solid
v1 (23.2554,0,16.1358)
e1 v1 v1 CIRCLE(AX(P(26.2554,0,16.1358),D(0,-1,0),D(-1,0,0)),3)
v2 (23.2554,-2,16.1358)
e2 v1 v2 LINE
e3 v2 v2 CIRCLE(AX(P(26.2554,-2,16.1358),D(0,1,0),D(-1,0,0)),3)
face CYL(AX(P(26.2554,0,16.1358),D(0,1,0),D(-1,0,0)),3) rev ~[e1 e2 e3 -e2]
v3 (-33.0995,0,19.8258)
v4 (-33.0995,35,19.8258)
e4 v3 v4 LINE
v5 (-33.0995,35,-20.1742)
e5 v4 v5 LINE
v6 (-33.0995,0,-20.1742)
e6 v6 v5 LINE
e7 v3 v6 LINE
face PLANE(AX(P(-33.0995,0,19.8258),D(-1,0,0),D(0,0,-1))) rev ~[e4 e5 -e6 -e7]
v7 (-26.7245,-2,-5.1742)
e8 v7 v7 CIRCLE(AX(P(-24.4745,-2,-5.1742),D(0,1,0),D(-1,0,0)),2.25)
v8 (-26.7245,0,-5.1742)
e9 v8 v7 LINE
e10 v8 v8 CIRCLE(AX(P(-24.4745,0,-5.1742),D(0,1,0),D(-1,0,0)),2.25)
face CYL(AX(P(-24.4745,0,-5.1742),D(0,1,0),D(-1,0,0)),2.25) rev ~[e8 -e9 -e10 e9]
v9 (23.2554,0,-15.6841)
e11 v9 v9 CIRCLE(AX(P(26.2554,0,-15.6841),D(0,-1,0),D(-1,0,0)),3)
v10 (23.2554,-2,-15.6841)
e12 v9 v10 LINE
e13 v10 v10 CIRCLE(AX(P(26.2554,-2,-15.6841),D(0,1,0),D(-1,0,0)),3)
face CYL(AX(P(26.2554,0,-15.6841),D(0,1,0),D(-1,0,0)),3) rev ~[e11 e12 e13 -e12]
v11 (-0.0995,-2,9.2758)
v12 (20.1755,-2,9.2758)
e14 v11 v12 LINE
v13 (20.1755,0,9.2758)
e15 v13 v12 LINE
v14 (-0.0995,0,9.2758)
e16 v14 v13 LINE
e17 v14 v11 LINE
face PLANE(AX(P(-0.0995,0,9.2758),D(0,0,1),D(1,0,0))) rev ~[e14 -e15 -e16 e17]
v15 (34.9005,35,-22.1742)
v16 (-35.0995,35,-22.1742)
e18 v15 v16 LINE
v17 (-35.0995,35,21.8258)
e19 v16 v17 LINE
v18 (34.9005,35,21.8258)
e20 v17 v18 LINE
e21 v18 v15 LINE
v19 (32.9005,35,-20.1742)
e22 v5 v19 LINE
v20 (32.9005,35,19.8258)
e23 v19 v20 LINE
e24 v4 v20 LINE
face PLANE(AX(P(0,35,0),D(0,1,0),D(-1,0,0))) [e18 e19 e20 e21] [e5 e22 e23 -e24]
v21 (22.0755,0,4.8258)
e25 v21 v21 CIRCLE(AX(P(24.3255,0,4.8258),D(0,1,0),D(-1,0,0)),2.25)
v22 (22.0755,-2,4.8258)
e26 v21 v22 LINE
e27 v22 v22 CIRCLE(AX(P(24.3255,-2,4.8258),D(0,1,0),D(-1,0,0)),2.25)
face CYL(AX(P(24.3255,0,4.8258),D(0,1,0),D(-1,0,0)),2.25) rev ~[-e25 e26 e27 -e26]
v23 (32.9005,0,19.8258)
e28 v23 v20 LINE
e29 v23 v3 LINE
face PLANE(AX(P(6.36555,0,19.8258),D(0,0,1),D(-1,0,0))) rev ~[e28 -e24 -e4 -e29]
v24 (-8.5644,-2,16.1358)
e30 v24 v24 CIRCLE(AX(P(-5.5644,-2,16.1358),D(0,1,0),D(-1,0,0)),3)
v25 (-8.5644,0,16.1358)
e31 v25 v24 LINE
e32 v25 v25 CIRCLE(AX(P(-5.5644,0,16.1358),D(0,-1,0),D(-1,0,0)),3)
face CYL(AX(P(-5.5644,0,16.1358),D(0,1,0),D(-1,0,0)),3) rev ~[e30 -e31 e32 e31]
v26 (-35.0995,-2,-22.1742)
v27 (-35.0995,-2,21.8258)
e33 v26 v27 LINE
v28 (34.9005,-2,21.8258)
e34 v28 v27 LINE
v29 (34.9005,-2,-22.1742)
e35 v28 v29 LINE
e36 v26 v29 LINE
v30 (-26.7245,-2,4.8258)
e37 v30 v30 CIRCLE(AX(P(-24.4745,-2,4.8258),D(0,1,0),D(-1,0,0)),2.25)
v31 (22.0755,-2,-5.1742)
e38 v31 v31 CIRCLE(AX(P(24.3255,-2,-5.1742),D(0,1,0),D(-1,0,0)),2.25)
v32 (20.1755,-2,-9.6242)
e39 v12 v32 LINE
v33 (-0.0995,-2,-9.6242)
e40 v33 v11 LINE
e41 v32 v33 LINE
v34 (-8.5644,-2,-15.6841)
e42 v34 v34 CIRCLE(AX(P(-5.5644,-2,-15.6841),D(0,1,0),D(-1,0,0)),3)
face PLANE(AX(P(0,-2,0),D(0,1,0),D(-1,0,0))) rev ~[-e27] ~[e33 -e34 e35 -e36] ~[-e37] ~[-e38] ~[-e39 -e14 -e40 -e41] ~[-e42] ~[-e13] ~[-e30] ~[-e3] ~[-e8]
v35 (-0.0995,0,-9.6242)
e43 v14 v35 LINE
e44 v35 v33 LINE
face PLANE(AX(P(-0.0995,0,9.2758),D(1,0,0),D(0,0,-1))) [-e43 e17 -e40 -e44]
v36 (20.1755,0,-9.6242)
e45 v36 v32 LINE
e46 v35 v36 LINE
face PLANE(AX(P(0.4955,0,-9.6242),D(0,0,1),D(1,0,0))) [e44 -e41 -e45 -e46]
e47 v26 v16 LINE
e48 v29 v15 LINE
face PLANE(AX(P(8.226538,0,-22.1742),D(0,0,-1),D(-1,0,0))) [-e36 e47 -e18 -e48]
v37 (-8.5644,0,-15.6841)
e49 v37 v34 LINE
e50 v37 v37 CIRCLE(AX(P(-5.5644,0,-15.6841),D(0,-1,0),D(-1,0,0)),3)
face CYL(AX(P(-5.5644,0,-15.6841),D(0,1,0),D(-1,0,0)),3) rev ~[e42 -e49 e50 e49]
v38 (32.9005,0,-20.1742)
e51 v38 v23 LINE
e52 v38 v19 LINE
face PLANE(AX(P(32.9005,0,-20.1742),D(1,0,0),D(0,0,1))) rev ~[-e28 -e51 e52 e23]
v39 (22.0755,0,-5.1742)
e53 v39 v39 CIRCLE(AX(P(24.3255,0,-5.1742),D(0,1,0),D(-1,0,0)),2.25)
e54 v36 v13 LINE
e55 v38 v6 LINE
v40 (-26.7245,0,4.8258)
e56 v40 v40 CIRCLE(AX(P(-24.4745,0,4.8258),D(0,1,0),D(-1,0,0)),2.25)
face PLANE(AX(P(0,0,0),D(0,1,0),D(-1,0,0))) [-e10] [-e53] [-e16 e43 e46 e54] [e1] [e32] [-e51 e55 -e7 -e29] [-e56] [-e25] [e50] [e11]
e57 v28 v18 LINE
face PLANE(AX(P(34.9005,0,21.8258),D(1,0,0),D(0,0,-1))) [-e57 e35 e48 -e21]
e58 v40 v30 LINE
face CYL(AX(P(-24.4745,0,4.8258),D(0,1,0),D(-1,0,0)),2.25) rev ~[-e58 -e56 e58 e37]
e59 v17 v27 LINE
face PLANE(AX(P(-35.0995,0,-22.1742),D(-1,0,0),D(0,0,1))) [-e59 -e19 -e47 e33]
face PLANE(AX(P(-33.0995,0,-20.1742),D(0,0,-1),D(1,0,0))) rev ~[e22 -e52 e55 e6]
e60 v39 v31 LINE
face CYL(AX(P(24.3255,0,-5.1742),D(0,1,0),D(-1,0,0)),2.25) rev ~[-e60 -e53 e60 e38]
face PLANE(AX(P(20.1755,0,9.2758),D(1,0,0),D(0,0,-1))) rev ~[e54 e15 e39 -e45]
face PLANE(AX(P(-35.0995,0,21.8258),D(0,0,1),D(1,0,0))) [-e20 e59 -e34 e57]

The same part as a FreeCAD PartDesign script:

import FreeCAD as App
import Part
import Sketcher
from FreeCAD import Vector
Q = App.Units.Quantity

doc = App.newDocument("Part")
body = doc.addObject("PartDesign::Body", "Body")

sketch1 = doc.addObject("Sketcher::SketchObject", "Sketch")
body.addObject(sketch1)
sketch1.AttachmentSupport = (doc.XZ_Plane, [""])
sketch1.MapMode = "FlatFace"
sketch1.addGeometry([
    Part.LineSegment(Vector(-35.1, 21.8, 0), Vector(34.9, 21.8, 0)),
    Part.LineSegment(Vector(34.9, 21.8, 0), Vector(34.9, -22.2, 0)),
    Part.LineSegment(Vector(34.9, -22.2, 0), Vector(-35.1, -22.2, 0)),
    Part.LineSegment(Vector(-35.1, -22.2, 0), Vector(-35.1, 21.8, 0)),
    Part.Circle(Vector(-24.5, 4.8, 0), Vector(0, 0, 1), 2.2),
    Part.Circle(Vector(-5.6, 16.1, 0), Vector(0, 0, 1), 3),
    Part.Circle(Vector(-5.6, -15.7, 0), Vector(0, 0, 1), 3),
    Part.Circle(Vector(-24.5, -5.2, 0), Vector(0, 0, 1), 2.2),
    Part.Circle(Vector(26.3, -15.7, 0), Vector(0, 0, 1), 3),
    Part.LineSegment(Vector(20.2, 9.3, 0), Vector(-0.1, 9.3, 0)),
    Part.LineSegment(Vector(-0.1, 9.3, 0), Vector(-0.1, -9.6, 0)),
    Part.LineSegment(Vector(-0.1, -9.6, 0), Vector(20.2, -9.6, 0)),
    Part.LineSegment(Vector(20.2, -9.6, 0), Vector(20.2, 9.3, 0)),
    Part.Circle(Vector(26.3, 16.1, 0), Vector(0, 0, 1), 3),
    Part.Circle(Vector(24.3, 4.8, 0), Vector(0, 0, 1), 2.2),
    Part.Circle(Vector(24.3, -5.2, 0), Vector(0, 0, 1), 2.2),
], False)
sketch1.addConstraint([
    Sketcher.Constraint("Coincident", 0, 2, 1, 1),
    Sketcher.Constraint("Coincident", 1, 2, 2, 1),
    Sketcher.Constraint("Coincident", 2, 2, 3, 1),
    Sketcher.Constraint("Coincident", 3, 2, 0, 1),
    Sketcher.Constraint("Coincident", 9, 2, 10, 1),
    Sketcher.Constraint("Coincident", 10, 2, 11, 1),
    Sketcher.Constraint("Coincident", 11, 2, 12, 1),
    Sketcher.Constraint("Coincident", 12, 2, 9, 1),
    Sketcher.Constraint("Horizontal", 0),
    Sketcher.Constraint("Vertical", 1),
    Sketcher.Constraint("Horizontal", 2),
    Sketcher.Constraint("Vertical", 3),
    Sketcher.Constraint("Horizontal", 9),
    Sketcher.Constraint("Vertical", 10),
    Sketcher.Constraint("Horizontal", 11),
    Sketcher.Constraint("Vertical", 12),
    Sketcher.Constraint("Equal", 5, 6),
    Sketcher.Constraint("Equal", 4, 7),
    Sketcher.Constraint("Equal", 6, 8),
    Sketcher.Constraint("Equal", 8, 13),
    Sketcher.Constraint("Equal", 7, 14),
    Sketcher.Constraint("Equal", 14, 15),
    Sketcher.Constraint("Horizontal", 6, 3, 8, 3),
    Sketcher.Constraint("Horizontal", 5, 3, 13, 3),
    Sketcher.Constraint("Horizontal", 4, 3, 14, 3),
    Sketcher.Constraint("Horizontal", 7, 3, 15, 3),
    Sketcher.Constraint("Vertical", 5, 3, 6, 3),
    Sketcher.Constraint("Vertical", 4, 3, 7, 3),
    Sketcher.Constraint("Vertical", 8, 3, 13, 3),
    Sketcher.Constraint("Vertical", 14, 3, 15, 3),
    Sketcher.Constraint("Diameter", 5, Q("6 mm")),
    Sketcher.Constraint("DistanceX", 0, 1, 0, 2, Q("70 mm")),
    Sketcher.Constraint("DistanceY", 1, 2, 1, 1, Q("44 mm")),
    Sketcher.Constraint("Diameter", 4, Q("4.5 mm")),
    Sketcher.Constraint("DistanceY", 10, 2, 10, 1, Q("18.9 mm")),
    Sketcher.Constraint("DistanceY", 7, 3, 4, 3, Q("10 mm")),
    Sketcher.Constraint("DistanceY", 14, 3, 0, 2, Q("17 mm")),
    Sketcher.Constraint("DistanceX", 4, 3, 14, 3, Q("48.8 mm")),
    Sketcher.Constraint("DistanceX", 9, 2, 9, 1, Q("20.275 mm")),
    Sketcher.Constraint("DistanceX", 4, 3, 5, 3, Q("18.91 mm")),
    Sketcher.Constraint("DistanceY", 4, 3, 5, 3, Q("11.31 mm")),
    Sketcher.Constraint("DistanceY", 6, 3, 4, 3, Q("20.51 mm")),
    Sketcher.Constraint("DistanceX", 7, 3, 8, 3, Q("50.73 mm")),
    Sketcher.Constraint("DistanceY", 9, 2, 5, 3, Q("6.86 mm")),
    Sketcher.Constraint("DistanceX", 11, 2, 15, 3, Q("4.15 mm")),
    Sketcher.Constraint("DistanceY", 6, 3, -1, 1, Q("15.684 mm")),
    Sketcher.Constraint("DistanceX", 13, 3, 0, 2, Q("8.645 mm")),
    Sketcher.Constraint("DistanceX", 4, 3, -1, 1, Q("24.4745 mm")),
])
pad1 = doc.addObject("PartDesign::Pad", "Pad")
body.addObject(pad1)
pad1.Profile = sketch1
pad1.Length = 2

sketch2 = doc.addObject("Sketcher::SketchObject", "Sketch001")
body.addObject(sketch2)
sketch2.AttachmentSupport = (doc.XZ_Plane, [""])
sketch2.MapMode = "FlatFace"
sketch2.addGeometry([
    Part.LineSegment(Vector(35, 22, 0), Vector(35, -22, 0)),
    Part.LineSegment(Vector(35, -22, 0), Vector(-35, -22, 0)),
    Part.LineSegment(Vector(-35, -22, 0), Vector(-35, 22, 0)),
    Part.LineSegment(Vector(-35, 22, 0), Vector(35, 22, 0)),
    Part.LineSegment(Vector(-33, 20, 0), Vector(-33, -20, 0)),
    Part.LineSegment(Vector(-33, -20, 0), Vector(33, -20, 0)),
    Part.LineSegment(Vector(33, -20, 0), Vector(33, 20, 0)),
    Part.LineSegment(Vector(33, 20, 0), Vector(-33, 20, 0)),
], False)
sketch2.addConstraint([
    Sketcher.Constraint("Coincident", 0, 2, 1, 1),
    Sketcher.Constraint("Coincident", 1, 2, 2, 1),
    Sketcher.Constraint("Coincident", 2, 2, 3, 1),
    Sketcher.Constraint("Coincident", 3, 2, 0, 1),
    Sketcher.Constraint("Coincident", 4, 2, 5, 1),
    Sketcher.Constraint("Coincident", 5, 2, 6, 1),
    Sketcher.Constraint("Coincident", 6, 2, 7, 1),
    Sketcher.Constraint("Coincident", 7, 2, 4, 1),
    Sketcher.Constraint("Vertical", 0),
    Sketcher.Constraint("Horizontal", 1),
    Sketcher.Constraint("Vertical", 2),
    Sketcher.Constraint("Horizontal", 3),
    Sketcher.Constraint("Vertical", 4),
    Sketcher.Constraint("Horizontal", 5),
    Sketcher.Constraint("Vertical", 6),
    Sketcher.Constraint("Horizontal", 7),
    Sketcher.Constraint("DistanceX", 1, 2, 1, 1, Q("70 mm")),
    Sketcher.Constraint("DistanceY", 0, 2, 0, 1, Q("44 mm")),
    Sketcher.Constraint("DistanceY", 4, 2, 4, 1, Q("40 mm")),
    Sketcher.Constraint("DistanceX", 1, 2, 4, 2, Q("2 mm")),
    Sketcher.Constraint("DistanceY", 1, 2, 4, 2, Q("2 mm")),
    Sketcher.Constraint("DistanceX", 5, 2, 0, 2, Q("2 mm")),
    Sketcher.Constraint("DistanceX", -1, 1, 0, 2, Q("34.9005 mm")),
    Sketcher.Constraint("DistanceY", 0, 2, -1, 1, Q("22.1742 mm")),
])
pad2 = doc.addObject("PartDesign::Pad", "Pad001")
body.addObject(pad2)
pad2.Profile = sketch2
pad2.Length = 35
pad2.Reversed = True

doc.recompute()
